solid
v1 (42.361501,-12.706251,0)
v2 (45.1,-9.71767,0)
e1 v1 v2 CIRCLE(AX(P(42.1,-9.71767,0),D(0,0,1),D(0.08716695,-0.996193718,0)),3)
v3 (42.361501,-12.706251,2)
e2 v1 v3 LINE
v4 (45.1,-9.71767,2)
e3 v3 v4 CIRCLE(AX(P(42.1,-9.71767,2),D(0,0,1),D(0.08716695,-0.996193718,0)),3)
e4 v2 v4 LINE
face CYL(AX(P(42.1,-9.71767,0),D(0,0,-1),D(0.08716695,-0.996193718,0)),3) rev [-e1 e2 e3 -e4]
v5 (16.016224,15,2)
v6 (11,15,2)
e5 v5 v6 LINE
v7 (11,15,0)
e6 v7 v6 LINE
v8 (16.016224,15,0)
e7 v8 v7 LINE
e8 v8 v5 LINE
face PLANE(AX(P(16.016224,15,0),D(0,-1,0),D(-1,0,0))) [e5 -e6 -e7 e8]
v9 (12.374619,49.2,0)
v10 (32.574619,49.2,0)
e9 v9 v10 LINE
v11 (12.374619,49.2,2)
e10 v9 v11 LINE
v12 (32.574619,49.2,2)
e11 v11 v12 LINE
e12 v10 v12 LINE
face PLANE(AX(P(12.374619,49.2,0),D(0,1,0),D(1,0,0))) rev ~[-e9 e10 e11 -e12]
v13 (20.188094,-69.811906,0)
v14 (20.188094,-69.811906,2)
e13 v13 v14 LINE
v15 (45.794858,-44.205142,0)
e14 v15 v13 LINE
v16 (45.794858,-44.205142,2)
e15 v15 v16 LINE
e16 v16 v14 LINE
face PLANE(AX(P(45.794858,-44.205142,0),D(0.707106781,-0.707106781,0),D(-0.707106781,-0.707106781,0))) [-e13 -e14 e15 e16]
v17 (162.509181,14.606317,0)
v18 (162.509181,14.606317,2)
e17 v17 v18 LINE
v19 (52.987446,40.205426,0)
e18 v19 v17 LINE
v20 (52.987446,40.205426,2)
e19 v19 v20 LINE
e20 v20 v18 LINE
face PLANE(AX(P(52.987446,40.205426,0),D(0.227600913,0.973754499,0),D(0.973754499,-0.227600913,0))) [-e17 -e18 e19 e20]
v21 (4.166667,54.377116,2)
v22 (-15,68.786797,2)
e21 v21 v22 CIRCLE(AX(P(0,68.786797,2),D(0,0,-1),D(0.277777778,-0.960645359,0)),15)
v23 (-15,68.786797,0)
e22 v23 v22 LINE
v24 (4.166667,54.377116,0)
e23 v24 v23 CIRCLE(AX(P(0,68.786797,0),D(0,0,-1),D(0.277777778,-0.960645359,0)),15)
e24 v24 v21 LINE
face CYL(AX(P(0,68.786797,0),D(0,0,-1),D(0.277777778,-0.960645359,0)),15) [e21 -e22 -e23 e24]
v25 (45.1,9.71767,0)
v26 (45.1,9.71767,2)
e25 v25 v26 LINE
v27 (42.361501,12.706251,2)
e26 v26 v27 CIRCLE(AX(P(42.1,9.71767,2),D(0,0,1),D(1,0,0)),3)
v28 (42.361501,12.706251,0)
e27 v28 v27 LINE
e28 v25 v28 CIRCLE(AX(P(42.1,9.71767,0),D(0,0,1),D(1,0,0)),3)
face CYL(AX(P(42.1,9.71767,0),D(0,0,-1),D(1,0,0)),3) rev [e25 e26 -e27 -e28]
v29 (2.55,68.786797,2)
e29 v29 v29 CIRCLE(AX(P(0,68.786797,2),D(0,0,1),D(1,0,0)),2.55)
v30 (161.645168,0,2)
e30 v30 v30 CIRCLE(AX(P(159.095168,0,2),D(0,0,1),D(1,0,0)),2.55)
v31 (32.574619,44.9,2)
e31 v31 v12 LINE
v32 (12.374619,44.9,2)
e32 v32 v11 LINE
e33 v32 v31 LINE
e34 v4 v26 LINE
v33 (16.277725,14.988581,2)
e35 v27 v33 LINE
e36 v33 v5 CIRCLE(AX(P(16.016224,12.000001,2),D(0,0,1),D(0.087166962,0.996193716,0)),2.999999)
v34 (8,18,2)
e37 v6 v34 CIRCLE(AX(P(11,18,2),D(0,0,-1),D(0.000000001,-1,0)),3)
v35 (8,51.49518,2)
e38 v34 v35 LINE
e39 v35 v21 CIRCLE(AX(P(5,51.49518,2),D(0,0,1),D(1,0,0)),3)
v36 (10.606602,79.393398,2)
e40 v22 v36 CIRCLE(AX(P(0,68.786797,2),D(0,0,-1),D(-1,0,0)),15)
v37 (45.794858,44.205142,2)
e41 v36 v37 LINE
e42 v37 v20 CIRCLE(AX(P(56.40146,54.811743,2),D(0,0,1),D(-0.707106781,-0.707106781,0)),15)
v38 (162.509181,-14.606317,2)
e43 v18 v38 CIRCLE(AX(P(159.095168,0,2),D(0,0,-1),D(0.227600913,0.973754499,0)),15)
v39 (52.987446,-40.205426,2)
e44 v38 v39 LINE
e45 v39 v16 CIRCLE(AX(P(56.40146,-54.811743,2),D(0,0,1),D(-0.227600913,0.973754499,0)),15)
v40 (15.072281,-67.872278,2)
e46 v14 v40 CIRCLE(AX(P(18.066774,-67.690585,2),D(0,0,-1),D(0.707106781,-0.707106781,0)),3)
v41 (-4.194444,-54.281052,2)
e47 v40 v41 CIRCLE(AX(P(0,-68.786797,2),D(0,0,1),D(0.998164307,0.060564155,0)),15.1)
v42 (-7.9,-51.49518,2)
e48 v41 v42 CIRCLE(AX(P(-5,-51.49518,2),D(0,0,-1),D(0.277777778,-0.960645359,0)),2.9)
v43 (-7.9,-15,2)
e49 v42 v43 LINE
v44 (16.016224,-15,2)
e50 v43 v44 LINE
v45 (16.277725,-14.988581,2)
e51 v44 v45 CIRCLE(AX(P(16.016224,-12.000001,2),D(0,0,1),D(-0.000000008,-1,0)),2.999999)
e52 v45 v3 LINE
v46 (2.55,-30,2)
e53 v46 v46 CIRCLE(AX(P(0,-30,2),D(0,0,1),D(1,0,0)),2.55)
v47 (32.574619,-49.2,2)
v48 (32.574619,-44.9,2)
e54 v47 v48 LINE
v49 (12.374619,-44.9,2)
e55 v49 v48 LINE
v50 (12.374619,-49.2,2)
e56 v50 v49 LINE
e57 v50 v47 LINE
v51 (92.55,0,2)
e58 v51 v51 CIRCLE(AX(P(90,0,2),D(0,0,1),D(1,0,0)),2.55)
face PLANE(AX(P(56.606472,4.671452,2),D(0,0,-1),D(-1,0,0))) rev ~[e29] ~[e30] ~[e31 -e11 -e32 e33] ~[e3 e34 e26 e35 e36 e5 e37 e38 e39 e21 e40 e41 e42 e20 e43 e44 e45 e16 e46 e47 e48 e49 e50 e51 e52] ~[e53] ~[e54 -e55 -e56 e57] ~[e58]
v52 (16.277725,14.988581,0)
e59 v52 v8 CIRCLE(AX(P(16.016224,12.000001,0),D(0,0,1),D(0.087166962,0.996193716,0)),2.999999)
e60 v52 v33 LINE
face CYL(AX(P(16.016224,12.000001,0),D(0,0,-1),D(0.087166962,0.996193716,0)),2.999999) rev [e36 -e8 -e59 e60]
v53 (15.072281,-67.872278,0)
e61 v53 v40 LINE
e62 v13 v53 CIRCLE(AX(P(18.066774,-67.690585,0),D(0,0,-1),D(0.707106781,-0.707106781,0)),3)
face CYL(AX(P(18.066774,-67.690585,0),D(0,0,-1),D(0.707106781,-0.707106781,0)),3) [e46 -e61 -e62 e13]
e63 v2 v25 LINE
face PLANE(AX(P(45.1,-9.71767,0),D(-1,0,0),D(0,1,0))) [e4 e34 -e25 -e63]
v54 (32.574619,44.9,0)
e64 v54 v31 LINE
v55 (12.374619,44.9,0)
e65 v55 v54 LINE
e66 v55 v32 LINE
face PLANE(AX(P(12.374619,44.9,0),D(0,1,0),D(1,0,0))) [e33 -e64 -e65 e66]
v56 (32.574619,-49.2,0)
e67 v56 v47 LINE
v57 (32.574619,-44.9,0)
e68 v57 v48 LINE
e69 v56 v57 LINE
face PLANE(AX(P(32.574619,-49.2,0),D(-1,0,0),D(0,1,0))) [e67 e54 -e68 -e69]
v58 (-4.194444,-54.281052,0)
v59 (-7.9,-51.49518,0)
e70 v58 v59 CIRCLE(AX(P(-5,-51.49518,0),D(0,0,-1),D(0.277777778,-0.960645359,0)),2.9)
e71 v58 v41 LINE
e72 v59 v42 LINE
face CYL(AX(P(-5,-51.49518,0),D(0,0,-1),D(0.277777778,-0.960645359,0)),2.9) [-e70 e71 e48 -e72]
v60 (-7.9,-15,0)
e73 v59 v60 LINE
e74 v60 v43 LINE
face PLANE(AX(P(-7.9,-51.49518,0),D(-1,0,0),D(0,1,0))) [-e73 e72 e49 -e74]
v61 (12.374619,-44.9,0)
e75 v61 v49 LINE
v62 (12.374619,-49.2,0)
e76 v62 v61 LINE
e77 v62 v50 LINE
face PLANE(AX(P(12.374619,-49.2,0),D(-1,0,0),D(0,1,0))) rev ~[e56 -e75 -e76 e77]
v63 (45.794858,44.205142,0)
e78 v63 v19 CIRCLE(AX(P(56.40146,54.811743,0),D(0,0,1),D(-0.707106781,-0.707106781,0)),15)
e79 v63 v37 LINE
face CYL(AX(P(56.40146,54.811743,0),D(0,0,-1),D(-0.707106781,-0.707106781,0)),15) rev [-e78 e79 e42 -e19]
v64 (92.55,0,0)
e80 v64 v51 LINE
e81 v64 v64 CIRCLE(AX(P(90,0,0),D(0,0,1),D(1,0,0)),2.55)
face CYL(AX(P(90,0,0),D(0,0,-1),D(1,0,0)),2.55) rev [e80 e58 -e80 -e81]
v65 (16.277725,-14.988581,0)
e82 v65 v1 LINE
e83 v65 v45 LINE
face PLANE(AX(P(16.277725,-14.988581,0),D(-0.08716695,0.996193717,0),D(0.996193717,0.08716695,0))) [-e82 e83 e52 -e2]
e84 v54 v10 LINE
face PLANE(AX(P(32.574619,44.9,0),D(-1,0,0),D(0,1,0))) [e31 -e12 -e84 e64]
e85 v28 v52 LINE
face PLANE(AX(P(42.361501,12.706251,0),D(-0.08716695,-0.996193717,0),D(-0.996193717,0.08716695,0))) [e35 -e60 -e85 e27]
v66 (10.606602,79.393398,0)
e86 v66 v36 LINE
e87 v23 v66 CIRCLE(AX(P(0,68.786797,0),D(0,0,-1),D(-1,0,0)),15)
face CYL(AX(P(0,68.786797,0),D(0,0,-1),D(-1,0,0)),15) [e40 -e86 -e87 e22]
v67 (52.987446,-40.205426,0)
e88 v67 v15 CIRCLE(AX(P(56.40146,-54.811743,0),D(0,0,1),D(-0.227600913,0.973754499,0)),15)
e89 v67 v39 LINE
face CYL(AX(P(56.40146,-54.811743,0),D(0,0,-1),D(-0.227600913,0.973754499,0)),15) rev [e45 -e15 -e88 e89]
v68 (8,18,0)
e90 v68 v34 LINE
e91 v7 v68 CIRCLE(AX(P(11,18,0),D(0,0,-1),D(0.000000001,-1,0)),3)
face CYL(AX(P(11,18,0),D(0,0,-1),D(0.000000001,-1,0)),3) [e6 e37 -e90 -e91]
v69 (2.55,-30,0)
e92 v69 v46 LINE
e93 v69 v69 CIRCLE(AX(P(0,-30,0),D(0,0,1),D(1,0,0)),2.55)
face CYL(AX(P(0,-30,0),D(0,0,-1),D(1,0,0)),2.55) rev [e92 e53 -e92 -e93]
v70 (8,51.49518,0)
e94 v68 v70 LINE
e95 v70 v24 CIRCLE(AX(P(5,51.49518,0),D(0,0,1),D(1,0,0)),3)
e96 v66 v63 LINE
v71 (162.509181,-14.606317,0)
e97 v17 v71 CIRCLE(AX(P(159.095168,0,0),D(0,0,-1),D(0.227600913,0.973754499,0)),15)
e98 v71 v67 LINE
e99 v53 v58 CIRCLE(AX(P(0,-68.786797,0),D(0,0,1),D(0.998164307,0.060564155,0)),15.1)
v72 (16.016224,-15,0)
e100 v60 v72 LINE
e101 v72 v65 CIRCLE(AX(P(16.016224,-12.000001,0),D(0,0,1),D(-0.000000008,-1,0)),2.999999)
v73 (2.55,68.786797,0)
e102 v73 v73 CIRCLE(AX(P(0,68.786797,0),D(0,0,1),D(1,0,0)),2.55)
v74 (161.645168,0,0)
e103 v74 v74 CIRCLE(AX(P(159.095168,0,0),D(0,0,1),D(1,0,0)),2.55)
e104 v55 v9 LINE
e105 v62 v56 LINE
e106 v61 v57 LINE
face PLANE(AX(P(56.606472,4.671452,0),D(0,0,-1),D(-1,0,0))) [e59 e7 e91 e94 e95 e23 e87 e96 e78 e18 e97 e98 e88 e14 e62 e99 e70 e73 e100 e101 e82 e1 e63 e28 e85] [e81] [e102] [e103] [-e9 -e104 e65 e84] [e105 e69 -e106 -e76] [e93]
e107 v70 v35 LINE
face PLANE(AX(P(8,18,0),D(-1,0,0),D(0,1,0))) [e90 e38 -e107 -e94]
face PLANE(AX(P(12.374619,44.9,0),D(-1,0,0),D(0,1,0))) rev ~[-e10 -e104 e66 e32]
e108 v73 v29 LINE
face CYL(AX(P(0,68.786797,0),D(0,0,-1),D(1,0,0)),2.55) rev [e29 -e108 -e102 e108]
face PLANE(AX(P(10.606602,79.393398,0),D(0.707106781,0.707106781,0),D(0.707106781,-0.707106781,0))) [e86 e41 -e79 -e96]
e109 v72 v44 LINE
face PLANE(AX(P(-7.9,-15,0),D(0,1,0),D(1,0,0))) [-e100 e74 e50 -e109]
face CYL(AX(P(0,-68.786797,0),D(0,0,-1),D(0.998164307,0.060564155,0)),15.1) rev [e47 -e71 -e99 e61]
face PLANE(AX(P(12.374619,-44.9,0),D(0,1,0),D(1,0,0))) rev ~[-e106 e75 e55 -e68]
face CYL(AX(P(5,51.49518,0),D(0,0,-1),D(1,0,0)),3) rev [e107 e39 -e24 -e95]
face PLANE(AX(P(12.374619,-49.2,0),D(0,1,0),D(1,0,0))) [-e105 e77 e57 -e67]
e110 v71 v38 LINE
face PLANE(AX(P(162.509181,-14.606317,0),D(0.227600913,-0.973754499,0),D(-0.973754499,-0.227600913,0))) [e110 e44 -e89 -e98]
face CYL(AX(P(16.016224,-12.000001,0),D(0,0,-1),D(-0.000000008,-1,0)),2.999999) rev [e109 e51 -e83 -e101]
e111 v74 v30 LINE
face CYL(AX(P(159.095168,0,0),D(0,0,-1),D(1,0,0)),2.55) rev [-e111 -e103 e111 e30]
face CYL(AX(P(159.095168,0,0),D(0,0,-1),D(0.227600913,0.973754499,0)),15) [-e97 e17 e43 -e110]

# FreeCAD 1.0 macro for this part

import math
import FreeCAD as App
import Part
import Sketcher

doc = App.newDocument("Part")
body = doc.addObject("PartDesign::Body", "Body")

sketch1 = doc.addObject("Sketcher::SketchObject", "Sketch")
body.addObject(sketch1)
sketch1.AttachmentSupport = (doc.XY_Plane, [""])
sketch1.MapMode = "FlatFace"
sketch1.addGeometry(Part.LineSegment(App.Vector(45.794858, 44.205142, 0), App.Vector(10.606602, 79.393398, 0)), False)
sketch1.addGeometry(Part.ArcOfCircle(Part.Circle(App.Vector(0, 68.786797, 0), App.Vector(0, 0, 1), 15), math.radians(45), math.radians(180)), False)
sketch1.addGeometry(Part.ArcOfCircle(Part.Circle(App.Vector(0, 68.786797, 0), App.Vector(0, 0, 1), 15), math.radians(180), math.radians(286.12762)), False)
sketch1.addGeometry(Part.ArcOfCircle(Part.Circle(App.Vector(5, 51.49518, 0), App.Vector(0, 0, 1), 3), math.radians(0), math.radians(106.12762)), False)
sketch1.addGeometry(Part.LineSegment(App.Vector(8, 51.49518, 0), App.Vector(8, 18, 0)), False)
sketch1.addGeometry(Part.ArcOfCircle(Part.Circle(App.Vector(11, 18, 0), App.Vector(0, 0, 1), 3), math.radians(180), math.radians(270)), False)
sketch1.addGeometry(Part.LineSegment(App.Vector(11, 15, 0), App.Vector(16.016224, 15, 0)), False)
sketch1.addGeometry(Part.ArcOfCircle(Part.Circle(App.Vector(16.016224, 12.000001, 0), App.Vector(0, 0, 1), 2.999999), math.radians(84.999355), math.radians(90)), False)
sketch1.addGeometry(Part.LineSegment(App.Vector(16.277725, 14.988581, 0), App.Vector(42.361501, 12.706251, 0)), False)
sketch1.addGeometry(Part.ArcOfCircle(Part.Circle(App.Vector(42.1, 9.71767, 0), App.Vector(0, 0, 1), 3), math.radians(0), math.radians(84.999355)), False)
sketch1.addGeometry(Part.LineSegment(App.Vector(45.1, 9.71767, 0), App.Vector(45.1, -9.71767, 0)), False)
sketch1.addGeometry(Part.ArcOfCircle(Part.Circle(App.Vector(42.1, -9.71767, 0), App.Vector(0, 0, 1), 3), math.radians(-84.999355), math.radians(0)), False)
sketch1.addGeometry(Part.LineSegment(App.Vector(42.361501, -12.706251, 0), App.Vector(16.277725, -14.988581, 0)), False)
sketch1.addGeometry(Part.ArcOfCircle(Part.Circle(App.Vector(16.016224, -12.000001, 0), App.Vector(0, 0, 1), 2.999999), math.radians(-90), math.radians(-84.999355)), False)
sketch1.addGeometry(Part.LineSegment(App.Vector(16.016224, -15, 0), App.Vector(-7.9, -15, 0)), False)
sketch1.addGeometry(Part.LineSegment(App.Vector(-7.9, -15, 0), App.Vector(-7.9, -51.49518, 0)), False)
sketch1.addGeometry(Part.ArcOfCircle(Part.Circle(App.Vector(-5, -51.49518, 0), App.Vector(0, 0, 1), 2.9), math.radians(-180), math.radians(-73.87238)), False)
sketch1.addGeometry(Part.ArcOfCircle(Part.Circle(App.Vector(0, -68.786797, 0), App.Vector(0, 0, 1), 15.1), math.radians(3.472195), math.radians(106.12762)), False)
sketch1.addGeometry(Part.ArcOfCircle(Part.Circle(App.Vector(18.066774, -67.690585, 0), App.Vector(0, 0, 1), 3), math.radians(-176.527805), math.radians(-45)), False)
sketch1.addGeometry(Part.LineSegment(App.Vector(20.188094, -69.811906, 0), App.Vector(45.794858, -44.205142, 0)), False)
sketch1.addGeometry(Part.ArcOfCircle(Part.Circle(App.Vector(56.40146, -54.811743, 0), App.Vector(0, 0, 1), 15), math.radians(103.155869), math.radians(135)), False)
sketch1.addGeometry(Part.LineSegment(App.Vector(52.987446, -40.205426, 0), App.Vector(162.509181, -14.606317, 0)), False)
sketch1.addGeometry(Part.ArcOfCircle(Part.Circle(App.Vector(159.095168, 0, 0), App.Vector(0, 0, 1), 15), math.radians(-76.844131), math.radians(76.844131)), False)
sketch1.addGeometry(Part.LineSegment(App.Vector(162.509181, 14.606317, 0), App.Vector(52.987446, 40.205426, 0)), False)
sketch1.addGeometry(Part.ArcOfCircle(Part.Circle(App.Vector(56.40146, 54.811743, 0), App.Vector(0, 0, 1), 15), math.radians(-135), math.radians(-103.155869)), False)
sketch1.addGeometry(Part.Circle(App.Vector(159.095168, 0, 0), App.Vector(0, 0, 1), 2.55), False)
sketch1.addGeometry(Part.Circle(App.Vector(90, 0, 0), App.Vector(0, 0, 1), 2.55), False)
sketch1.addGeometry(Part.LineSegment(App.Vector(12.374619, -49.2, 0), App.Vector(12.374619, -44.9, 0)), False)
sketch1.addGeometry(Part.LineSegment(App.Vector(12.374619, -44.9, 0), App.Vector(32.574619, -44.9, 0)), False)
sketch1.addGeometry(Part.LineSegment(App.Vector(32.574619, -44.9, 0), App.Vector(32.574619, -49.2, 0)), False)
sketch1.addGeometry(Part.LineSegment(App.Vector(32.574619, -49.2, 0), App.Vector(12.374619, -49.2, 0)), False)
sketch1.addGeometry(Part.Circle(App.Vector(0, -30, 0), App.Vector(0, 0, 1), 2.55), False)
sketch1.addGeometry(Part.LineSegment(App.Vector(12.374619, 44.9, 0), App.Vector(12.374619, 49.2, 0)), False)
sketch1.addGeometry(Part.LineSegment(App.Vector(12.374619, 49.2, 0), App.Vector(32.574619, 49.2, 0)), False)
sketch1.addGeometry(Part.LineSegment(App.Vector(32.574619, 49.2, 0), App.Vector(32.574619, 44.9, 0)), False)
sketch1.addGeometry(Part.LineSegment(App.Vector(32.574619, 44.9, 0), App.Vector(12.374619, 44.9, 0)), False)
sketch1.addGeometry(Part.Circle(App.Vector(0, 68.786797, 0), App.Vector(0, 0, 1), 2.55), False)
sketch1.addConstraint(Sketcher.Constraint("Tangent", 0, 2, 1, 1))
sketch1.addConstraint(Sketcher.Constraint("Tangent", 1, 2, 2, 1))
sketch1.addConstraint(Sketcher.Constraint("Tangent", 2, 2, 3, 2))
sketch1.addConstraint(Sketcher.Constraint("Tangent", 3, 1, 4, 1))
sketch1.addConstraint(Sketcher.Constraint("Tangent", 4, 2, 5, 1))
sketch1.addConstraint(Sketcher.Constraint("Tangent", 5, 2, 6, 1))
sketch1.addConstraint(Sketcher.Constraint("Tangent", 6, 2, 7, 2))
sketch1.addConstraint(Sketcher.Constraint("Tangent", 7, 1, 8, 1))
sketch1.addConstraint(Sketcher.Constraint("Tangent", 8, 2, 9, 2))
sketch1.addConstraint(Sketcher.Constraint("Tangent", 9, 1, 10, 1))
sketch1.addConstraint(Sketcher.Constraint("Tangent", 10, 2, 11, 2))
sketch1.addConstraint(Sketcher.Constraint("Tangent", 11, 1, 12, 1))
sketch1.addConstraint(Sketcher.Constraint("Tangent", 12, 2, 13, 2))
sketch1.addConstraint(Sketcher.Constraint("Tangent", 13, 1, 14, 1))
sketch1.addConstraint(Sketcher.Constraint("Coincident", 14, 2, 15, 1))
sketch1.addConstraint(Sketcher.Constraint("Tangent", 15, 2, 16, 1))
sketch1.addConstraint(Sketcher.Constraint("Tangent", 16, 2, 17, 2))
sketch1.addConstraint(Sketcher.Constraint("Tangent", 17, 1, 18, 1))
sketch1.addConstraint(Sketcher.Constraint("Tangent", 18, 2, 19, 1))
sketch1.addConstraint(Sketcher.Constraint("Tangent", 19, 2, 20, 2))
sketch1.addConstraint(Sketcher.Constraint("Tangent", 20, 1, 21, 1))
sketch1.addConstraint(Sketcher.Constraint("Tangent", 21, 2, 22, 1))
sketch1.addConstraint(Sketcher.Constraint("Tangent", 22, 2, 23, 1))
sketch1.addConstraint(Sketcher.Constraint("Tangent", 23, 2, 24, 2))
sketch1.addConstraint(Sketcher.Constraint("Tangent", 24, 1, 0, 1))
sketch1.addConstraint(Sketcher.Constraint("Coincident", 27, 2, 28, 1))
sketch1.addConstraint(Sketcher.Constraint("Coincident", 28, 2, 29, 1))
sketch1.addConstraint(Sketcher.Constraint("Coincident", 29, 2, 30, 1))
sketch1.addConstraint(Sketcher.Constraint("Coincident", 30, 2, 27, 1))
sketch1.addConstraint(Sketcher.Constraint("Coincident", 32, 2, 33, 1))
sketch1.addConstraint(Sketcher.Constraint("Coincident", 33, 2, 34, 1))
sketch1.addConstraint(Sketcher.Constraint("Coincident", 34, 2, 35, 1))
sketch1.addConstraint(Sketcher.Constraint("Coincident", 35, 2, 32, 1))
sketch1.addConstraint(Sketcher.Constraint("Vertical", 4))
sketch1.addConstraint(Sketcher.Constraint("Horizontal", 6))
sketch1.addConstraint(Sketcher.Constraint("Vertical", 10))
sketch1.addConstraint(Sketcher.Constraint("Horizontal", 14))
sketch1.addConstraint(Sketcher.Constraint("Vertical", 15))
sketch1.addConstraint(Sketcher.Constraint("Vertical", 27))
sketch1.addConstraint(Sketcher.Constraint("Horizontal", 28))
sketch1.addConstraint(Sketcher.Constraint("Vertical", 29))
sketch1.addConstraint(Sketcher.Constraint("Horizontal", 30))
sketch1.addConstraint(Sketcher.Constraint("Vertical", 32))
sketch1.addConstraint(Sketcher.Constraint("Horizontal", 33))
sketch1.addConstraint(Sketcher.Constraint("Vertical", 34))
sketch1.addConstraint(Sketcher.Constraint("Horizontal", 35))
sketch1.addConstraint(Sketcher.Constraint("Coincident", 25, 3, 22, 3))
sketch1.addConstraint(Sketcher.Constraint("Coincident", 36, 3, 1, 3))
sketch1.addConstraint(Sketcher.Constraint("Equal", 1, 2))
sketch1.addConstraint(Sketcher.Constraint("Equal", 3, 5))
sketch1.addConstraint(Sketcher.Constraint("Equal", 5, 7))
sketch1.addConstraint(Sketcher.Constraint("Equal", 7, 9))
sketch1.addConstraint(Sketcher.Constraint("Equal", 9, 11))
sketch1.addConstraint(Sketcher.Constraint("Equal", 11, 13))
sketch1.addConstraint(Sketcher.Constraint("Equal", 13, 18))
sketch1.addConstraint(Sketcher.Constraint("Equal", 2, 20))
sketch1.addConstraint(Sketcher.Constraint("Equal", 20, 22))
sketch1.addConstraint(Sketcher.Constraint("Equal", 22, 24))
sketch1.addConstraint(Sketcher.Constraint("Equal", 25, 26))
sketch1.addConstraint(Sketcher.Constraint("Equal", 26, 31))
sketch1.addConstraint(Sketcher.Constraint("Equal", 31, 36))
sketch1.addConstraint(Sketcher.Constraint("Symmetric", 3, 3, 16, 3, -1, 1))
sketch1.addConstraint(Sketcher.Constraint("Symmetric", 1, 3, 17, 3, -1, 1))
sketch1.addConstraint(Sketcher.Constraint("Symmetric", 7, 3, 13, 3, -1))
sketch1.addConstraint(Sketcher.Constraint("Symmetric", 20, 3, 24, 3, -1))
sketch1.addConstraint(Sketcher.Constraint("Symmetric", 30, 2, 32, 2, -1))
sketch1.addConstraint(Sketcher.Constraint("Symmetric", 28, 2, 34, 2, -1))
sketch1.addConstraint(Sketcher.Constraint("PointOnObject", 1, 3, -2))
sketch1.addConstraint(Sketcher.Constraint("PointOnObject", 22, 3, -1))
sketch1.addConstraint(Sketcher.Constraint("PointOnObject", 26, 3, -1))
sketch1.addConstraint(Sketcher.Constraint("PointOnObject", 31, 3, -2))
sketch1.addConstraint(Sketcher.Constraint("Perpendicular", 0, 19))
sketch1.addConstraint(Sketcher.Constraint("Horizontal", 36, 3, 1, 2))
sketch1.addConstraint(Sketcher.Constraint("Vertical", 8, 2, 11, 1))
sketch1.addConstraint(Sketcher.Constraint("Vertical", 19, 2, 24, 1))
sketch1.addConstraint(Sketcher.Constraint("Radius", 1, 15.0))
sketch1.addConstraint(Sketcher.Constraint("Radius", 3, 3.0))
sketch1.addConstraint(Sketcher.Constraint("Diameter", 25, 5.1))
sketch1.addConstraint(Sketcher.Constraint("Radius", 16, 2.9))
sketch1.addConstraint(Sketcher.Constraint("DistanceX", 28, 1, 28, 2, 20.2))
sketch1.addConstraint(Sketcher.Constraint("DistanceY", 27, 1, 27, 2, 4.3))
sketch1.addConstraint(Sketcher.Constraint("DistanceX", -1, 1, 3, 3, 5.0))
sketch1.addConstraint(Sketcher.Constraint("DistanceY", -1, 1, 5, 3, 18.0))
sketch1.addConstraint(Sketcher.Constraint("DistanceX", -1, 1, 26, 3, 90.0))
sketch1.addConstraint(Sketcher.Constraint("DistanceY", 31, 3, -1, 1, 30.0))
sketch1.addConstraint(Sketcher.Constraint("DistanceX", -1, 1, 9, 3, 42.1))
sketch1.addConstraint(Sketcher.Constraint("DistanceY", 27, 2, -1, 1, 44.9))
sketch1.addConstraint(Sketcher.Constraint("DistanceY", 4, 2, 4, 1, 33.49518))
sketch1.addConstraint(Sketcher.Constraint("DistanceY", 10, 2, 10, 1, 19.435339))
sketch1.addConstraint(Sketcher.Constraint("DistanceX", -1, 1, 8, 2, 42.361501))
sketch1.addConstraint(Sketcher.Constraint("Distance", 0, 49.76371))
sketch1.addConstraint(Sketcher.Constraint("DistanceX", -1, 1, 21, 2, 162.509181))
sketch1.addConstraint(Sketcher.Constraint("DistanceX", -1, 1, 27, 2, 12.374619))
pad1 = doc.addObject("PartDesign::Pad", "Pad")
body.addObject(pad1)
pad1.Profile = sketch1
pad1.Length = 2

doc.recompute()
